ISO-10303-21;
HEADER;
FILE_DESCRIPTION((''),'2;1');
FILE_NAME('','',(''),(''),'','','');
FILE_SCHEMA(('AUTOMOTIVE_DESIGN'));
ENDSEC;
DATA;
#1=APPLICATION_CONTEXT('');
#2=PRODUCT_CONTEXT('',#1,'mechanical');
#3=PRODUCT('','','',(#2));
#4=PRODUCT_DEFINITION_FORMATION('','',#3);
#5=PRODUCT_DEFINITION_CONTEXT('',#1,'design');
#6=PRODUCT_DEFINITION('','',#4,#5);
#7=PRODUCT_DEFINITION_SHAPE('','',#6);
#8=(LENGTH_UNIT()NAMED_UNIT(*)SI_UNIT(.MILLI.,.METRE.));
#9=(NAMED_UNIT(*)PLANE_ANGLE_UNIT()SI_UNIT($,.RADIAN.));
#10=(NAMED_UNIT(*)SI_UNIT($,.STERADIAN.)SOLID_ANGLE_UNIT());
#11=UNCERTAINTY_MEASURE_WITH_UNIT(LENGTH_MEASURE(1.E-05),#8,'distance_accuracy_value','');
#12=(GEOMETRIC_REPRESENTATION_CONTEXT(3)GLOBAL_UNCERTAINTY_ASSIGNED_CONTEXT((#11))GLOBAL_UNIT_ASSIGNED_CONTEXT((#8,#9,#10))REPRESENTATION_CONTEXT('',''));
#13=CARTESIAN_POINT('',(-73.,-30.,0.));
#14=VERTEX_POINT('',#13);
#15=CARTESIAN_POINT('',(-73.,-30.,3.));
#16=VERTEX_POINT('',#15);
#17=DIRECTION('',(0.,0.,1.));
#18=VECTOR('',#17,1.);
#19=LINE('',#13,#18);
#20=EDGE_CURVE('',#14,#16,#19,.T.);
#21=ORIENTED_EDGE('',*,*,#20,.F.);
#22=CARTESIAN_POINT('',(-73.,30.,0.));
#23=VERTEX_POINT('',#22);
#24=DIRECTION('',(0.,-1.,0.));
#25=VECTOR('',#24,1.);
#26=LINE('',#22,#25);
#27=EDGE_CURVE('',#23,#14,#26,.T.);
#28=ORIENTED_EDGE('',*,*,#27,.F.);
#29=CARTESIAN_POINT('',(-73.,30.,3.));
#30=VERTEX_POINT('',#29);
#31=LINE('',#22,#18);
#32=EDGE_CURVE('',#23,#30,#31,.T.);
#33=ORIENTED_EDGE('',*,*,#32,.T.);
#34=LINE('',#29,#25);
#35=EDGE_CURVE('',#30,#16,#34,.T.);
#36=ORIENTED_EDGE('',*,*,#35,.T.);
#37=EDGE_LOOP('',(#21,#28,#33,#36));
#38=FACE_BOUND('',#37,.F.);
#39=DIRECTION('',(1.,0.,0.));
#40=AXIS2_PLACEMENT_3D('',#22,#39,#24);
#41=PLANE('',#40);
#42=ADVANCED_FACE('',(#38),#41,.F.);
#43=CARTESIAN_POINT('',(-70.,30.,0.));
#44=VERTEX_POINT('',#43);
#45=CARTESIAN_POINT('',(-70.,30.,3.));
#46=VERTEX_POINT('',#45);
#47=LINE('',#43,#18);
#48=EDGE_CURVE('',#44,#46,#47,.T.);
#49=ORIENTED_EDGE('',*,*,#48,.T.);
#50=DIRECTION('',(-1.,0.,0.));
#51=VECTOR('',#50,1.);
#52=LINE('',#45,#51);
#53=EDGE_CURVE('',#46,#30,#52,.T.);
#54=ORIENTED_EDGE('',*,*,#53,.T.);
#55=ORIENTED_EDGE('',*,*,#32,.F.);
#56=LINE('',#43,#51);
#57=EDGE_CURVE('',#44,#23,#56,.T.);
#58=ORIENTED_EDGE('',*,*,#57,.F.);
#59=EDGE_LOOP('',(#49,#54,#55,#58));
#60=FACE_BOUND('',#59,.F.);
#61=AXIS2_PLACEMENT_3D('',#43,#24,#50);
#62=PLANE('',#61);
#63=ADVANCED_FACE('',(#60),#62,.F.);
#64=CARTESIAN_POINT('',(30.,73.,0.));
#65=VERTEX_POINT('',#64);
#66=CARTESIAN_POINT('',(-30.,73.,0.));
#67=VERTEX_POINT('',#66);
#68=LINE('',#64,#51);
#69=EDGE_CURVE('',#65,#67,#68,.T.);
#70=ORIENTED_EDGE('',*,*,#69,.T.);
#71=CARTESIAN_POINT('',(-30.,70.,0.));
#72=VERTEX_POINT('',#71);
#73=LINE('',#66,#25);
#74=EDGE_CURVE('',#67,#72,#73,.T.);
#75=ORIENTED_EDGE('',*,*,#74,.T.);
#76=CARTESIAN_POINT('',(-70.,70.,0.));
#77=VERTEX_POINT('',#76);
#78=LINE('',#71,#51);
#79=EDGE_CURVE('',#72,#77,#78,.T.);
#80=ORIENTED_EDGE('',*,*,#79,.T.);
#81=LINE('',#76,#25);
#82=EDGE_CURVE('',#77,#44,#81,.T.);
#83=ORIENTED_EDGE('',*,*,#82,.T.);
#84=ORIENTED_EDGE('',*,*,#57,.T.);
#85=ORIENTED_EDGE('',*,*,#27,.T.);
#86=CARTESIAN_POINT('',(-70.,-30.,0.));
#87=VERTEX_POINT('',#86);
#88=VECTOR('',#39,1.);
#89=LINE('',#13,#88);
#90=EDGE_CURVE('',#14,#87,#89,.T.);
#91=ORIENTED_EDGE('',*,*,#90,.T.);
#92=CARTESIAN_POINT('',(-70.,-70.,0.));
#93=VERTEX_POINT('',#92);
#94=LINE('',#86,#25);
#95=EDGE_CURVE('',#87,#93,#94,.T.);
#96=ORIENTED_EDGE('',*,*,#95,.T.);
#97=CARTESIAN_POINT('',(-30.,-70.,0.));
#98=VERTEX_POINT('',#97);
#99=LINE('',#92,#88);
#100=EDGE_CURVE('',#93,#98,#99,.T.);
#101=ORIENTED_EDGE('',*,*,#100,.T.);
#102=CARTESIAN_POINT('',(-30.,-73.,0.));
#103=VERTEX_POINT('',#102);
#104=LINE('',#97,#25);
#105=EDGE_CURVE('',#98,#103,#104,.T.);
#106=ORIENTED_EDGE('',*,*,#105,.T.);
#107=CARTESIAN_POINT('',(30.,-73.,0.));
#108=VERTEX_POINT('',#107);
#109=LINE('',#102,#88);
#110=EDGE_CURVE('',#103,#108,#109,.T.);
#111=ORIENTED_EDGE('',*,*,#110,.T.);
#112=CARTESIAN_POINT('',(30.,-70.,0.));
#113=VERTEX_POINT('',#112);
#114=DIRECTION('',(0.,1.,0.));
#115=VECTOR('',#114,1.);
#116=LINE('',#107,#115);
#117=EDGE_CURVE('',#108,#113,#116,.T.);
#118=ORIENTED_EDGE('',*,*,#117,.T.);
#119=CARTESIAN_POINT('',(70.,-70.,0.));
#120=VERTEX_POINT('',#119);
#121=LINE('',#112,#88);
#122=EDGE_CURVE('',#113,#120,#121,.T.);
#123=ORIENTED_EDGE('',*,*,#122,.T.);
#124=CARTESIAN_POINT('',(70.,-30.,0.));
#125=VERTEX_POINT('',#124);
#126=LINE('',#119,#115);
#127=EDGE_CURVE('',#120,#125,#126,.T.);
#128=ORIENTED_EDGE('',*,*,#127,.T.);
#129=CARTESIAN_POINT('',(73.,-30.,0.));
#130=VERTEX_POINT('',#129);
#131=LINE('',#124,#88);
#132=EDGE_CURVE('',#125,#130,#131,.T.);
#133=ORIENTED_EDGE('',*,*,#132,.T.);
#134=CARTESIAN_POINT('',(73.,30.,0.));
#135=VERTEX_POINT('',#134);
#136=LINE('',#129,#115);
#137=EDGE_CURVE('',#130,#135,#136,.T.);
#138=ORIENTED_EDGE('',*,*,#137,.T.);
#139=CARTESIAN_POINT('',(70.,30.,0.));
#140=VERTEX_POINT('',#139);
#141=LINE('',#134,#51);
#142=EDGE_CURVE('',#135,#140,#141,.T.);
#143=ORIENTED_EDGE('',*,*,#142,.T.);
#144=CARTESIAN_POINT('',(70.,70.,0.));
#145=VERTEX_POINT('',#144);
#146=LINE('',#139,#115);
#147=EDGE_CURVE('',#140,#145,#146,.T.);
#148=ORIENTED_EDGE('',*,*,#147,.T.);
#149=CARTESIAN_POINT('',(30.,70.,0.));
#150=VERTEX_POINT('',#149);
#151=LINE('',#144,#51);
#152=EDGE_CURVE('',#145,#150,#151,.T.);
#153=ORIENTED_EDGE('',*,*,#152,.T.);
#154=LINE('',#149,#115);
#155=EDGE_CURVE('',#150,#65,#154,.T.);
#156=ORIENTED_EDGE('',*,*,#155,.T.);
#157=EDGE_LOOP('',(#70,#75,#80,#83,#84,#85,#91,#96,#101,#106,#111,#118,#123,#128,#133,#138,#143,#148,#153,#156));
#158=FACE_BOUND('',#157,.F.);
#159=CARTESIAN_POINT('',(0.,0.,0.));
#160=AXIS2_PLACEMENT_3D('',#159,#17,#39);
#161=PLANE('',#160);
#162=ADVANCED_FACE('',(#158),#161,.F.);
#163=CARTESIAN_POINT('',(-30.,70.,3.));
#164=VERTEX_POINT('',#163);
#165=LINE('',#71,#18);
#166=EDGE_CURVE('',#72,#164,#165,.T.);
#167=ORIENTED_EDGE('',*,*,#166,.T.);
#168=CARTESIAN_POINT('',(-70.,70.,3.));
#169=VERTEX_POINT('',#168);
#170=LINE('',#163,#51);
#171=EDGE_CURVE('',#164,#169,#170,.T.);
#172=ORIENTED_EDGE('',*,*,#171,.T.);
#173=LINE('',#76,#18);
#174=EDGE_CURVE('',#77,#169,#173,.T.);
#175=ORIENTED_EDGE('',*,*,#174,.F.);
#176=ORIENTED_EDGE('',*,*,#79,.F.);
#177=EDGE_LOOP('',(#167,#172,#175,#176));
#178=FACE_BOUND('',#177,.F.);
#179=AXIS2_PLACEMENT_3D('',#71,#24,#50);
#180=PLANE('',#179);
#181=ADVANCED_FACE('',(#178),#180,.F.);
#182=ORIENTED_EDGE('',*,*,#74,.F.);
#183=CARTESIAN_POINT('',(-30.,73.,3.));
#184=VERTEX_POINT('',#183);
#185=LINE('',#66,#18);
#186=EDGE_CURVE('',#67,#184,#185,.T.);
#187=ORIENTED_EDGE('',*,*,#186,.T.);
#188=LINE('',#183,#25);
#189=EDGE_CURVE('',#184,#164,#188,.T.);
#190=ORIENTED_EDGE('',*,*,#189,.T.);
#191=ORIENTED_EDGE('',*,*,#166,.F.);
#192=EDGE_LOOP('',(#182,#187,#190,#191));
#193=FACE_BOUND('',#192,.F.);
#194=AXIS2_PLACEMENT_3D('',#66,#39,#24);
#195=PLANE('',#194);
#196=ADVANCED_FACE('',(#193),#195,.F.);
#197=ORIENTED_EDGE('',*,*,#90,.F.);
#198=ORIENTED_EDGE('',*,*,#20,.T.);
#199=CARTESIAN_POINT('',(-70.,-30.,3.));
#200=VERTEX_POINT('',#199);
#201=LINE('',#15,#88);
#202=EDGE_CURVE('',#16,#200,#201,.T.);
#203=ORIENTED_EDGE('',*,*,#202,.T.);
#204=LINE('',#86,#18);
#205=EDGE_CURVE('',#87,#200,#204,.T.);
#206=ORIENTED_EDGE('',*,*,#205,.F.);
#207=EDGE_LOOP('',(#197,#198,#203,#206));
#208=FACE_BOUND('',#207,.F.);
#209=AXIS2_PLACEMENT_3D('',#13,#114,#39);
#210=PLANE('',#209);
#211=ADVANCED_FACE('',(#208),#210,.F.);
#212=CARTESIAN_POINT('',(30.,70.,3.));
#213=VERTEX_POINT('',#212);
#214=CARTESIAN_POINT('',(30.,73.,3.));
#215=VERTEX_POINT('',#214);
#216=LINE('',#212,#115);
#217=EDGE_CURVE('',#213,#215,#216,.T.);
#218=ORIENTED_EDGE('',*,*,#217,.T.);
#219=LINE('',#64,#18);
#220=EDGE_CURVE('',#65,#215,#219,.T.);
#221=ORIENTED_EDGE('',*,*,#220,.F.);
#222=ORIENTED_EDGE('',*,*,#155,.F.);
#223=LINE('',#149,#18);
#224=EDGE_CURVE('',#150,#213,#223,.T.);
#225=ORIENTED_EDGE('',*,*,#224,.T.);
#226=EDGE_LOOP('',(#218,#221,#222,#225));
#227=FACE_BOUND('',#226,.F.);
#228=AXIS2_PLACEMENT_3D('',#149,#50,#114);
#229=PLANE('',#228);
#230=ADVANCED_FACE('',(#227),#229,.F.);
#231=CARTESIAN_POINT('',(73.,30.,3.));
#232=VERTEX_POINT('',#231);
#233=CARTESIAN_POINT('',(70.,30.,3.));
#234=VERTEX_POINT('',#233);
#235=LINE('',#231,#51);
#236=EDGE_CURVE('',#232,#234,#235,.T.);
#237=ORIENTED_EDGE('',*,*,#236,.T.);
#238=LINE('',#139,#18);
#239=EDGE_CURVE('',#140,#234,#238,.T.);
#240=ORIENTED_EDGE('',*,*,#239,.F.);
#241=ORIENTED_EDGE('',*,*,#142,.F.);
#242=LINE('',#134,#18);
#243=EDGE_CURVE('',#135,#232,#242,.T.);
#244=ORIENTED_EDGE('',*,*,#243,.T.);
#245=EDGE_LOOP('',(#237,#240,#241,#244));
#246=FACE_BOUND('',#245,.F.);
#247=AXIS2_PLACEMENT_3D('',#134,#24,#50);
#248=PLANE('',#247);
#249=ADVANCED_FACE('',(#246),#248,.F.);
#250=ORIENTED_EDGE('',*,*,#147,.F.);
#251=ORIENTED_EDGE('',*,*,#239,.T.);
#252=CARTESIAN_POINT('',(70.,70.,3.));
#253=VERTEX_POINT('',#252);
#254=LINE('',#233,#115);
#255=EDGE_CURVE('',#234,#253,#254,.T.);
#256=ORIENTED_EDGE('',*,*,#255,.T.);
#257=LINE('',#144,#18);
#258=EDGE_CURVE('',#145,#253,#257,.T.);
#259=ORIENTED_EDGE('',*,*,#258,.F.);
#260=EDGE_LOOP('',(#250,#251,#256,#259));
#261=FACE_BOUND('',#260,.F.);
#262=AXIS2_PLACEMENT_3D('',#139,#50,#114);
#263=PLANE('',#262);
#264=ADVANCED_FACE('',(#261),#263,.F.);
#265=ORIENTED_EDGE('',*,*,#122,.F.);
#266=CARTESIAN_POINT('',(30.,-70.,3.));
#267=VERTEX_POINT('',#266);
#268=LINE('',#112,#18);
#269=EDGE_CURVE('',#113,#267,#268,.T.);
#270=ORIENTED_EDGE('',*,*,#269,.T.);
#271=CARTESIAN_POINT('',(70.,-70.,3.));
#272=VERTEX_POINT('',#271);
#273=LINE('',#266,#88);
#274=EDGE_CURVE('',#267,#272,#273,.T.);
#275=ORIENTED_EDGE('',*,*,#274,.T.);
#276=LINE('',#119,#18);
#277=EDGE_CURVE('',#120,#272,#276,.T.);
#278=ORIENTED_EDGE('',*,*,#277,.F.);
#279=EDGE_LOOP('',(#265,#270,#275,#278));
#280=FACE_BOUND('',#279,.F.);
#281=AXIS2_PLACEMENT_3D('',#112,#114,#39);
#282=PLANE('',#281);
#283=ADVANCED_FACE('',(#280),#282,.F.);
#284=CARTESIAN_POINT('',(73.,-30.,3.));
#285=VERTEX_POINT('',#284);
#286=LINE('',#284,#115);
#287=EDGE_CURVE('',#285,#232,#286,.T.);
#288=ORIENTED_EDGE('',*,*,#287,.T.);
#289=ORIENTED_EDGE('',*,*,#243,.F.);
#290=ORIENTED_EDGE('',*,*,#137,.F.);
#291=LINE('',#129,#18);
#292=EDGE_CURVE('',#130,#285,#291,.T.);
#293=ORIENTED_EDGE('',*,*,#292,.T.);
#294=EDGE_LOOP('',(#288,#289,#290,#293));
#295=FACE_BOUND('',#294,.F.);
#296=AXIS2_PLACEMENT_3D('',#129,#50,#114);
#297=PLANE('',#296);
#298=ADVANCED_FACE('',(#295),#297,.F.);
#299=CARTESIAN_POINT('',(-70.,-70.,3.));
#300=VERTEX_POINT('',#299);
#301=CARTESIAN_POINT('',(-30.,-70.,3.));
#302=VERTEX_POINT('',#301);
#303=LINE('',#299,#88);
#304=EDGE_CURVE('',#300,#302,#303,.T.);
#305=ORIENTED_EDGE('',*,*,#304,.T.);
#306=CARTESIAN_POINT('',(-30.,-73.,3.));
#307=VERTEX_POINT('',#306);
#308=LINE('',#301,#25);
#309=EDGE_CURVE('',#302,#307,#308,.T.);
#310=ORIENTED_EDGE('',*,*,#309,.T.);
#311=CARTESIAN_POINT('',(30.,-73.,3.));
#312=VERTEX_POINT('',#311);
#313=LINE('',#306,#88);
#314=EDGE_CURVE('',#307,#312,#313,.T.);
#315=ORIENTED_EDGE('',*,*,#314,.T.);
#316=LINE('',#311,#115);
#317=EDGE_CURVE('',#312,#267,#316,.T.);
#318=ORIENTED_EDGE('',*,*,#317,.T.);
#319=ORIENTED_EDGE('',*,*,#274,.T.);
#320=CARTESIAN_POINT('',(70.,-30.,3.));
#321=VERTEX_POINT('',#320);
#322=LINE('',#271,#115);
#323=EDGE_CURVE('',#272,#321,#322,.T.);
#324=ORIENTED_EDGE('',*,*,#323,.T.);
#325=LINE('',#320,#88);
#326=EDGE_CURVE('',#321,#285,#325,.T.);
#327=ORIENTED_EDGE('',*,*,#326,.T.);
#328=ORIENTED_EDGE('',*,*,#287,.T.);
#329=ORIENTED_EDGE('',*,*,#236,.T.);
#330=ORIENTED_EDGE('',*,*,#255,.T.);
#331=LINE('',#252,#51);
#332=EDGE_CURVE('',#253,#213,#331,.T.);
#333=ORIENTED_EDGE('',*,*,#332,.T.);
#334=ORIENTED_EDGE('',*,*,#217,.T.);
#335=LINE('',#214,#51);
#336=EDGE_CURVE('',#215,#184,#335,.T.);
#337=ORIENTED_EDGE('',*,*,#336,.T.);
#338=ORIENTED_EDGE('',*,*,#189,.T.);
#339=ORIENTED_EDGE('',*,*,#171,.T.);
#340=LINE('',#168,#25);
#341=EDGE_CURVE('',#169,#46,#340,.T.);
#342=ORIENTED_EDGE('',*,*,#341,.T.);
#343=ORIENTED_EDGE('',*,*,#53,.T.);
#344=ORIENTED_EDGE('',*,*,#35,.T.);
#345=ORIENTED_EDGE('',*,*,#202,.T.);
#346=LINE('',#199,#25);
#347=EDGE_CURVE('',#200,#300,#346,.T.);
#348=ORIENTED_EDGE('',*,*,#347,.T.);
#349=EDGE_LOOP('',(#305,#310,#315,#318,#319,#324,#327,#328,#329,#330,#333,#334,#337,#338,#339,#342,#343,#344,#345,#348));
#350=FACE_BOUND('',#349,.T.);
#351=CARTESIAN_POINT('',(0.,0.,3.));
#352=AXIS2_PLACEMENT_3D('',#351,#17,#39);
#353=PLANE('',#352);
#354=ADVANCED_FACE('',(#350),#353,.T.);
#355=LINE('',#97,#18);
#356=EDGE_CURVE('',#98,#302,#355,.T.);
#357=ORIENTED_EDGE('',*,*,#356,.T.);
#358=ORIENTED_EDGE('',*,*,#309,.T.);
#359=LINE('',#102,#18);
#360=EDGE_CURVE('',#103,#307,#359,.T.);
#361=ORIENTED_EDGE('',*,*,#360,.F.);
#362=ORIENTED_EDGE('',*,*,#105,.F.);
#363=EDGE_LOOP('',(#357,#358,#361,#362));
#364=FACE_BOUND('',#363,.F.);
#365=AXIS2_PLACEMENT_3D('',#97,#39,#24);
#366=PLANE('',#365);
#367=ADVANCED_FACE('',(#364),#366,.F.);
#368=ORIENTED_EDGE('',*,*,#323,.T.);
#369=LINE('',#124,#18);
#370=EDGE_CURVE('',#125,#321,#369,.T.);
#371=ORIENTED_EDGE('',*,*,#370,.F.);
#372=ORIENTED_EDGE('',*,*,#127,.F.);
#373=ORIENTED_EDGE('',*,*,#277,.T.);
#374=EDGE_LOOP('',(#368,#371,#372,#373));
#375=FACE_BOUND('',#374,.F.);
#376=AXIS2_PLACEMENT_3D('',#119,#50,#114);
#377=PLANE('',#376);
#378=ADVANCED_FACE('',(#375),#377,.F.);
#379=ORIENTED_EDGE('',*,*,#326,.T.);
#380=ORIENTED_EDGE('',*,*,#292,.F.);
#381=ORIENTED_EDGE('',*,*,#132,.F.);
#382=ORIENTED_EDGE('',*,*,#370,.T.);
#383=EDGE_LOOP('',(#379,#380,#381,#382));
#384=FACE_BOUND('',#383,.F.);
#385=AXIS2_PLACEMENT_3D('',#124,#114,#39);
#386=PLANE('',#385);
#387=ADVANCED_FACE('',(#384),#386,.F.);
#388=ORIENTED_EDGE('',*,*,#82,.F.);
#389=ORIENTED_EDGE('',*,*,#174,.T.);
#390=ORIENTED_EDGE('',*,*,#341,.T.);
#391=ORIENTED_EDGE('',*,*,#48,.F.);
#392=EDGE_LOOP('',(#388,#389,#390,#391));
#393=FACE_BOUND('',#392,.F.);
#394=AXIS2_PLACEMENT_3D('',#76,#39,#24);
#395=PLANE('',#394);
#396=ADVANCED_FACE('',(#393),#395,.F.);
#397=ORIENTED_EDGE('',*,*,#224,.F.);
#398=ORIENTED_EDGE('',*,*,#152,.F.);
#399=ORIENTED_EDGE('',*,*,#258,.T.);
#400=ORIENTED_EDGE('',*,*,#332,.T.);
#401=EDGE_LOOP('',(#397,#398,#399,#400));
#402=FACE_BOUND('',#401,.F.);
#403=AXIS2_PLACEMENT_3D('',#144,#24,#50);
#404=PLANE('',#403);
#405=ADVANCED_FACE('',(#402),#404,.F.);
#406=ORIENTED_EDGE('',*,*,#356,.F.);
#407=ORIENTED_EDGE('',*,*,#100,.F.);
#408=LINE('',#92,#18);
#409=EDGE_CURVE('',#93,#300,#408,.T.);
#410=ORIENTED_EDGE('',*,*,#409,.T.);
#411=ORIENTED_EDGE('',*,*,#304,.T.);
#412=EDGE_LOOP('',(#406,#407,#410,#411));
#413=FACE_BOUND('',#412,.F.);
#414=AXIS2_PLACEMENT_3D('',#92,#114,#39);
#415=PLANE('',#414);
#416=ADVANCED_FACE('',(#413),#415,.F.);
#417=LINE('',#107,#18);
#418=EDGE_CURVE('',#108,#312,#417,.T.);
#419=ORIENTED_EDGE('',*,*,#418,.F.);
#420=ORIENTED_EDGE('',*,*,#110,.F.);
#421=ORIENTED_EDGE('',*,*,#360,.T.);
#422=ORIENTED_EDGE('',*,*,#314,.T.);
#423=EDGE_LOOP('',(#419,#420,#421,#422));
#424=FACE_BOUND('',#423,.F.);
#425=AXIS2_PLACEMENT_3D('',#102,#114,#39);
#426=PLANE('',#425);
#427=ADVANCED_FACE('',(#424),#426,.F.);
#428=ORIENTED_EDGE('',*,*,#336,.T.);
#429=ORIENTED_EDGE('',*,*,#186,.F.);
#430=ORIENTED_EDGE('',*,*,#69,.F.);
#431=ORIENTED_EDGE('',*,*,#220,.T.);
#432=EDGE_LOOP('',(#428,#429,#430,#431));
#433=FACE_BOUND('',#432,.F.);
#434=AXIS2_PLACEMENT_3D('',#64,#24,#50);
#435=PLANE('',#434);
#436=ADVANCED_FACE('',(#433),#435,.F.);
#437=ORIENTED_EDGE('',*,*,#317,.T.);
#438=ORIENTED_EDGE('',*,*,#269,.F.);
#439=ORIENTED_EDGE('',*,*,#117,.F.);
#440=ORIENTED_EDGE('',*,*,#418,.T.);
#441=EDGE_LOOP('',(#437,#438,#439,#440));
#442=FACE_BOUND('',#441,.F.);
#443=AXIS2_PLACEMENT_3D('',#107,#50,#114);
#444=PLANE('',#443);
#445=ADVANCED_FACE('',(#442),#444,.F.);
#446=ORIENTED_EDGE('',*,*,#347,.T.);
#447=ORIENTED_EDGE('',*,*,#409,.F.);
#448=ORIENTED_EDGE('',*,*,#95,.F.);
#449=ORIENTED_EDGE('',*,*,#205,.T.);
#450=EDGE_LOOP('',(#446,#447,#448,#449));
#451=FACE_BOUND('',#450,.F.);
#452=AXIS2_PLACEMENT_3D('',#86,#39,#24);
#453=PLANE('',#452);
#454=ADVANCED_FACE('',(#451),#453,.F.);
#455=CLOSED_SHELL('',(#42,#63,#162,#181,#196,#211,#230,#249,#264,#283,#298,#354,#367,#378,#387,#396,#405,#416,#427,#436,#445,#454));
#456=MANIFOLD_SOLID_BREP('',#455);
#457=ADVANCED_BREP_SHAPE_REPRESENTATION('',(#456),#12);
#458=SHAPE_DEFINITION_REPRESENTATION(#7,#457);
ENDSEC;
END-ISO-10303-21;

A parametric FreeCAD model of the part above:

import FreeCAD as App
import Part
import Sketcher

V = App.Vector


def add_polygon(sketch, points):
    """Adds a closed chain of lines whose ends are joined by coincident constraints."""
    first, n = sketch.GeometryCount, len(points)
    for a, b in zip(points, points[1:] + points[:1]):
        sketch.addGeometry(Part.LineSegment(App.Vector(*a, 0), App.Vector(*b, 0)), False)
    for i in range(n):
        sketch.addConstraint(Sketcher.Constraint("Coincident", first + i, 2, first + (i + 1) % n, 1))

doc = App.newDocument("Part")
body = doc.addObject("PartDesign::Body", "Body")

sketch1 = body.newObject("Sketcher::SketchObject", "Sketch")
sketch1.AttachmentSupport = (doc.getObject("XY_Plane"), [""])
sketch1.MapMode = "FlatFace"
add_polygon(sketch1, [(30, -70), (70, -70), (70, -30), (73, -30), (73, 30), (70, 30), (70, 70), (30, 70), (30, 73), (-30, 73), (-30, 70), (-70, 70), (-70, 30), (-73, 30), (-73, -30), (-70, -30), (-70, -70), (-30, -70), (-30, -73), (30, -73)])
sketch1.addConstraint(Sketcher.Constraint("Horizontal", 0))
sketch1.addConstraint(Sketcher.Constraint("Vertical", 1))
sketch1.addConstraint(Sketcher.Constraint("Horizontal", 2))
sketch1.addConstraint(Sketcher.Constraint("Vertical", 3))
sketch1.addConstraint(Sketcher.Constraint("Horizontal", 4))
sketch1.addConstraint(Sketcher.Constraint("Vertical", 5))
sketch1.addConstraint(Sketcher.Constraint("Horizontal", 6))
sketch1.addConstraint(Sketcher.Constraint("Vertical", 7))
sketch1.addConstraint(Sketcher.Constraint("Horizontal", 8))
sketch1.addConstraint(Sketcher.Constraint("Vertical", 9))
sketch1.addConstraint(Sketcher.Constraint("Horizontal", 10))
sketch1.addConstraint(Sketcher.Constraint("Vertical", 11))
sketch1.addConstraint(Sketcher.Constraint("Horizontal", 12))
sketch1.addConstraint(Sketcher.Constraint("Vertical", 13))
sketch1.addConstraint(Sketcher.Constraint("Horizontal", 14))
sketch1.addConstraint(Sketcher.Constraint("Vertical", 15))
sketch1.addConstraint(Sketcher.Constraint("Horizontal", 16))
sketch1.addConstraint(Sketcher.Constraint("Vertical", 17))
sketch1.addConstraint(Sketcher.Constraint("Horizontal", 18))
sketch1.addConstraint(Sketcher.Constraint("Vertical", 19))
sketch1.addConstraint(Sketcher.Constraint("Symmetric", 0, 2, 10, 2, -1, 1))
sketch1.addConstraint(Sketcher.Constraint("Symmetric", 2, 2, 12, 2, -1, 1))
sketch1.addConstraint(Sketcher.Constraint("Symmetric", 4, 2, 14, 2, -1, 1))
sketch1.addConstraint(Sketcher.Constraint("Symmetric", 6, 2, 16, 2, -1, 1))
sketch1.addConstraint(Sketcher.Constraint("Symmetric", 8, 2, 18, 2, -1, 1))
sketch1.addConstraint(Sketcher.Constraint("Symmetric", 6, 2, 9, 2, -2))
sketch1.addConstraint(Sketcher.Constraint("Symmetric", 4, 2, 11, 2, -2))
sketch1.addConstraint(Sketcher.Constraint("Equal", 16, 1))
sketch1.addConstraint(Sketcher.Constraint("Equal", 18, 3))
sketch1.addConstraint(Sketcher.Constraint("Equal", 14, 7))
sketch1.addConstraint(Sketcher.Constraint("DistanceX", 0, 1, 0, 2, 40.0))
sketch1.addConstraint(Sketcher.Constraint("DistanceX", 2, 1, 2, 2, 3.0))
sketch1.addConstraint(Sketcher.Constraint("DistanceX", 8, 2, 8, 1, 60.0))
pad1 = body.newObject("PartDesign::Pad", "Pad")
pad1.Profile = sketch1
pad1.Length = 3

doc.recompute()
